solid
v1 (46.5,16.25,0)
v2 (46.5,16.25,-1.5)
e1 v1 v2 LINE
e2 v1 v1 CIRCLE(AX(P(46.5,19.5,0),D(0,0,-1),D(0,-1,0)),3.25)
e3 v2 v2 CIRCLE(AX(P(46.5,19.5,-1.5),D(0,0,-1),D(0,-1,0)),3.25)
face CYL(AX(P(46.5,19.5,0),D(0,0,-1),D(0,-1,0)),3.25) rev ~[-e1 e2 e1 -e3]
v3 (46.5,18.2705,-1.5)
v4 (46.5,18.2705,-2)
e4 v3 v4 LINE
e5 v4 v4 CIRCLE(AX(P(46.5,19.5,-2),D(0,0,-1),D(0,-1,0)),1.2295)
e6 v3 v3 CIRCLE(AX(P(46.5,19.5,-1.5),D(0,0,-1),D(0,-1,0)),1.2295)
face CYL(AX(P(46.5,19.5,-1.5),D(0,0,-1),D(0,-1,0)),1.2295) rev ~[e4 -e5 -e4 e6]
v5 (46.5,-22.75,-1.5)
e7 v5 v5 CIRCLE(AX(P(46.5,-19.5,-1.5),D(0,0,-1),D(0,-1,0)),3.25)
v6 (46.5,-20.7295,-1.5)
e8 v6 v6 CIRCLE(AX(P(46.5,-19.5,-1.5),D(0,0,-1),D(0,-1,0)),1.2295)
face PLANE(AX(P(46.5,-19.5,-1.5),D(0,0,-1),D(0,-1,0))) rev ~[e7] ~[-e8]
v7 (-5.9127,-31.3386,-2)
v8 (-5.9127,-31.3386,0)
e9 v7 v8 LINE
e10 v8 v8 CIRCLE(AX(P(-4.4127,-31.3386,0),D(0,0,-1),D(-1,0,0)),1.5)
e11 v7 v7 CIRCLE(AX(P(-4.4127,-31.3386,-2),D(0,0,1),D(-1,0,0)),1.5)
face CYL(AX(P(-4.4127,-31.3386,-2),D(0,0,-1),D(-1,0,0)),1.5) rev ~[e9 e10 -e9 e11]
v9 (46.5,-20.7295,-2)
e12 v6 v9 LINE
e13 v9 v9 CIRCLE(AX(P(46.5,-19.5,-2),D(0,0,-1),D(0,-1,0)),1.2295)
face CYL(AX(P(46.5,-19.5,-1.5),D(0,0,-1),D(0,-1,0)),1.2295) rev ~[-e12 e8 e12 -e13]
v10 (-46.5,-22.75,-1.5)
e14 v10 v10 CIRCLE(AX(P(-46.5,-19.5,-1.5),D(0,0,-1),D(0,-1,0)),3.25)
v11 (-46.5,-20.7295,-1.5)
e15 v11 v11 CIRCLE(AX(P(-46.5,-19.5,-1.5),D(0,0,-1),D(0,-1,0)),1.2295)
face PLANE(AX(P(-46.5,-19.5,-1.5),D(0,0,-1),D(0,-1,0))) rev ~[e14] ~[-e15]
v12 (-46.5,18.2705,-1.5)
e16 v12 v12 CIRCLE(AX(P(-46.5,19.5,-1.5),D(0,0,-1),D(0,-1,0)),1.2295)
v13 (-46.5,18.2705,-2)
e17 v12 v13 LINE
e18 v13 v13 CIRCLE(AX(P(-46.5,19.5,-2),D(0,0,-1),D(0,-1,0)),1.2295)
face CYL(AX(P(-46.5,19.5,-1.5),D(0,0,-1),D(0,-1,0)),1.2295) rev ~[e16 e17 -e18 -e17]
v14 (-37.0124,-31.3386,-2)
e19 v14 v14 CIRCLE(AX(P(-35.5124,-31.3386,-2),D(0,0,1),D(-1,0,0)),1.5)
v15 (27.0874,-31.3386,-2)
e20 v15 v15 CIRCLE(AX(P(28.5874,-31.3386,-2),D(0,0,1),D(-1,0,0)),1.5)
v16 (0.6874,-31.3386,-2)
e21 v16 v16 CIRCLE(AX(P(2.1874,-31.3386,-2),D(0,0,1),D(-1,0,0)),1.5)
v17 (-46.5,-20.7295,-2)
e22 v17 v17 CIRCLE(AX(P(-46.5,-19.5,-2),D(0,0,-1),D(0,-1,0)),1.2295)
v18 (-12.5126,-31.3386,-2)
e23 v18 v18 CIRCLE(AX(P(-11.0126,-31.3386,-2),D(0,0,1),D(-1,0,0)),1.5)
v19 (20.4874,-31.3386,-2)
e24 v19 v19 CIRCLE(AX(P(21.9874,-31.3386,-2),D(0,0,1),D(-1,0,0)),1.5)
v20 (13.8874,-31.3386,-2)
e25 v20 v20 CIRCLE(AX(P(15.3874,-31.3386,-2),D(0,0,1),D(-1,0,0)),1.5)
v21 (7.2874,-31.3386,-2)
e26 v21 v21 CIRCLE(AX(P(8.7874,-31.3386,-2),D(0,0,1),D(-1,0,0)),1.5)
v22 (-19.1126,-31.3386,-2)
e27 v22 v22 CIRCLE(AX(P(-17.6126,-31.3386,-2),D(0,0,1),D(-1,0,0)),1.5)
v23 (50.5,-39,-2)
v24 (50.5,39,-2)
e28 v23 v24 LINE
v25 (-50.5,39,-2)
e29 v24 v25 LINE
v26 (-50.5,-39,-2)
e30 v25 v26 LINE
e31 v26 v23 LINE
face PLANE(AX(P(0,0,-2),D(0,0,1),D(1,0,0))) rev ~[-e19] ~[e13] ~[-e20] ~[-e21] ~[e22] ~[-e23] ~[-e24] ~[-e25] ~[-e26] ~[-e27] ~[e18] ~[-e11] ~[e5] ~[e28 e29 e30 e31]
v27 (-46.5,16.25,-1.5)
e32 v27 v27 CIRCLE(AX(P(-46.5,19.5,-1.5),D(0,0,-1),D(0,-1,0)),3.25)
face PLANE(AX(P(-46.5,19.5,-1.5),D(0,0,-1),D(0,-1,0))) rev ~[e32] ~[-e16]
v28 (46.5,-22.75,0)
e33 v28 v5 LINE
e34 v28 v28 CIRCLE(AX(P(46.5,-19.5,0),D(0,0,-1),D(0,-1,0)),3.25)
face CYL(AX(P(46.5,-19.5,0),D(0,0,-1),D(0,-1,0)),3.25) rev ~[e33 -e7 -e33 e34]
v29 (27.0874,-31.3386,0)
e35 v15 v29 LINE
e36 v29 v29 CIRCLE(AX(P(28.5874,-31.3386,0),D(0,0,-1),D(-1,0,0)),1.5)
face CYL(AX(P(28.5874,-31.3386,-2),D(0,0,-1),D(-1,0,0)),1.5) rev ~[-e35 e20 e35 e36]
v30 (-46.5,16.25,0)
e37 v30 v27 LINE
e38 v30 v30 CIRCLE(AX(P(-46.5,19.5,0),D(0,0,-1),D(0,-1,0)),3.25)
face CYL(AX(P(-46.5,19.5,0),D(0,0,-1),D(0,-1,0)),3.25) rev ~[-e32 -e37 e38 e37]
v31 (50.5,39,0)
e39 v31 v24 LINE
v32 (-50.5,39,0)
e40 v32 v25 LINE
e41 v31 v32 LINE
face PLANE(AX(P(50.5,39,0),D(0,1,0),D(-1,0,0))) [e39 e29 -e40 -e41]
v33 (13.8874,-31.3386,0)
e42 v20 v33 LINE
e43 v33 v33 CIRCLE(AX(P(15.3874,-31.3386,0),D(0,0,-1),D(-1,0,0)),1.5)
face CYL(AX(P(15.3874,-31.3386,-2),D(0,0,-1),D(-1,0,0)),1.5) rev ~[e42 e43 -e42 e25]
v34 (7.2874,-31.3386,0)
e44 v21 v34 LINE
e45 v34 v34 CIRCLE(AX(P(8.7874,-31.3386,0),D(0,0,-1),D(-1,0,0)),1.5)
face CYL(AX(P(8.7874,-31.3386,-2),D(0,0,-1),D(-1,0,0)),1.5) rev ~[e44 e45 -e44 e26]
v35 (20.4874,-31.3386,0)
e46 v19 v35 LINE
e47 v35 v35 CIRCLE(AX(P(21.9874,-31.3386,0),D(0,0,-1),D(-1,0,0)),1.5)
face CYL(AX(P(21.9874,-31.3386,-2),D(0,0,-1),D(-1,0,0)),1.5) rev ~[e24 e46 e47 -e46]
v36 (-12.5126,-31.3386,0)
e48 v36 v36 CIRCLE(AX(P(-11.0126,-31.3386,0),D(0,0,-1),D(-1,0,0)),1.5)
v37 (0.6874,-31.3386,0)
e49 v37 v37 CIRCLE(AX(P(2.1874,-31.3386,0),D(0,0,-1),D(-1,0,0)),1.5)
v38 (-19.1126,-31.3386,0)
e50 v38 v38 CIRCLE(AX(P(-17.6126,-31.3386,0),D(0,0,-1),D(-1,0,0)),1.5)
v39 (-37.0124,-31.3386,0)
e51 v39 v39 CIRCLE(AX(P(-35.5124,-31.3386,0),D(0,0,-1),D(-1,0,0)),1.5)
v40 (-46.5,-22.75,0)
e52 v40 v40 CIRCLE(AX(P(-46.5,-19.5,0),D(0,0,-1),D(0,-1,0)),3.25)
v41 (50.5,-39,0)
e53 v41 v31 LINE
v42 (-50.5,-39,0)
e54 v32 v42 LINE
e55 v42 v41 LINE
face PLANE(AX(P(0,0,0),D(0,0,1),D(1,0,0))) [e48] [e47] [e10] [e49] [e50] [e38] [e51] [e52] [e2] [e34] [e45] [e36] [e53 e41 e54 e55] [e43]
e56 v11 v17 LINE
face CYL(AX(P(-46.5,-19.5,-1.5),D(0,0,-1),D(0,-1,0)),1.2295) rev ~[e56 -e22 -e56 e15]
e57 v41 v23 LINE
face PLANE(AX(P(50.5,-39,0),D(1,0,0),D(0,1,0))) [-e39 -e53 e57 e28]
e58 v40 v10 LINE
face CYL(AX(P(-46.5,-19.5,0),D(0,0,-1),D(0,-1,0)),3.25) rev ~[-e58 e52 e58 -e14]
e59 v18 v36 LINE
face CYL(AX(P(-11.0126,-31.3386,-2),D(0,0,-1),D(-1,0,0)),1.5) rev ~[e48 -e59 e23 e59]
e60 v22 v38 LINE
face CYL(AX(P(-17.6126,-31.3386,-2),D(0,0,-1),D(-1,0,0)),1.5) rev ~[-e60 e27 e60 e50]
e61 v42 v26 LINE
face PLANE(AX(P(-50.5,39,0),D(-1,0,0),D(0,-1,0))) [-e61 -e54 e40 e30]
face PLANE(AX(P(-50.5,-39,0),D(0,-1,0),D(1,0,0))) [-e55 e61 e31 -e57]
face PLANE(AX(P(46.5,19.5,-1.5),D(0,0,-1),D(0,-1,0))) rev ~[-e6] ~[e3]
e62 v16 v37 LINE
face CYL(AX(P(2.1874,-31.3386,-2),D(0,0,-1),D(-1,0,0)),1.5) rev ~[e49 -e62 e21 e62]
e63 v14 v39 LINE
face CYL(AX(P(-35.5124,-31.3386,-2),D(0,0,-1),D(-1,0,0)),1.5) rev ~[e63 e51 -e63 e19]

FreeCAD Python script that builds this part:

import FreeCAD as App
import Part
import Sketcher

V = App.Vector


def add_polygon(sketch, points):
    """Adds a closed chain of lines whose ends are joined by coincident constraints."""
    first, n = sketch.GeometryCount, len(points)
    for a, b in zip(points, points[1:] + points[:1]):
        sketch.addGeometry(Part.LineSegment(App.Vector(*a, 0), App.Vector(*b, 0)), False)
    for i in range(n):
        sketch.addConstraint(Sketcher.Constraint("Coincident", first + i, 2, first + (i + 1) % n, 1))

doc = App.newDocument("Part")
body = doc.addObject("PartDesign::Body", "Body")

sketch1 = body.newObject("Sketcher::SketchObject", "Sketch")
sketch1.AttachmentSupport = (doc.getObject("XY_Plane"), [""])
sketch1.MapMode = "FlatFace"
add_polygon(sketch1, [(-50.5, 39), (-50.5, -39), (50.5, -39), (50.5, 39)])
sketch1.addConstraint([
    Sketcher.Constraint("Vertical", 0),
    Sketcher.Constraint("Horizontal", 1),
    Sketcher.Constraint("Vertical", 2),
    Sketcher.Constraint("Horizontal", 3),
    Sketcher.Constraint("Symmetric", 0, 2, 2, 2, -1, 1),
    Sketcher.Constraint("DistanceX", 1, 1, 1, 2, 101.0),
    Sketcher.Constraint("DistanceY", 0, 2, 0, 1, 78.0),
])
pad1 = body.newObject("PartDesign::Pad", "Pad")
pad1.Profile = sketch1
pad1.Length = 2
pad1.Reversed = True

sketch2 = body.newObject("Sketcher::SketchObject", "Sketch001")
sketch2.AttachmentSupport = (doc.getObject("XY_Plane"), [""])
sketch2.MapMode = "FlatFace"
sketch2.addGeometry([
    Part.Circle(V(-46.5, 19.5, 0), V(0, 0, 1), 1.2295),
    Part.Circle(V(-46.5, -19.5, 0), V(0, 0, 1), 1.2295),
    Part.Circle(V(46.5, -19.5, 0), V(0, 0, 1), 1.2295),
    Part.Circle(V(46.5, 19.5, 0), V(0, 0, 1), 1.2295),
], False)
sketch2.addConstraint([
    Sketcher.Constraint("Equal", 0, 1),
    Sketcher.Constraint("Equal", 1, 2),
    Sketcher.Constraint("Equal", 2, 3),
    Sketcher.Constraint("Symmetric", 0, 3, 2, 3, -1, 1),
    Sketcher.Constraint("Symmetric", 1, 3, 3, 3, -1, 1),
    Sketcher.Constraint("Symmetric", 1, 3, 2, 3, -2),
    Sketcher.Constraint("Diameter", 0, 2.459),
    Sketcher.Constraint("DistanceY", 1, 3, 0, 3, 39.0),
    Sketcher.Constraint("DistanceX", 1, 3, 2, 3, 93.0),
])
doc.recompute()
hole = body.newObject("PartDesign::Hole", "Hole")
hole.Profile = sketch2
hole.ThreadType = "None"
hole.Diameter = 2.459
hole.DepthType = "ThroughAll"
hole.HoleCutType = "Counterbore"
hole.HoleCutDiameter = 6.5
hole.HoleCutDepth = 1.5

sketch3 = body.newObject("Sketcher::SketchObject", "Sketch002")
sketch3.AttachmentSupport = (doc.getObject("XY_Plane"), [""])
sketch3.MapMode = "FlatFace"
sketch3.AttachmentOffset = App.Placement(V(0, 0, -2), App.Rotation())
sketch3.addGeometry([
    Part.Circle(V(-35.5124, -31.3386, 0), V(0, 0, 1), 1.5),
    Part.Circle(V(28.5874, -31.3386, 0), V(0, 0, 1), 1.5),
    Part.Circle(V(21.9874, -31.3386, 0), V(0, 0, 1), 1.5),
    Part.Circle(V(15.3874, -31.3386, 0), V(0, 0, 1), 1.5),
    Part.Circle(V(8.7874, -31.3386, 0), V(0, 0, 1), 1.5),
    Part.Circle(V(2.1874, -31.3386, 0), V(0, 0, 1), 1.5),
    Part.Circle(V(-4.4127, -31.3386, 0), V(0, 0, 1), 1.5),
    Part.Circle(V(-11.0126, -31.3386, 0), V(0, 0, 1), 1.5),
    Part.Circle(V(-17.6126, -31.3386, 0), V(0, 0, 1), 1.5),
], False)
sketch3.addConstraint([
    Sketcher.Constraint("Equal", 0, 1),
    Sketcher.Constraint("Equal", 1, 2),
    Sketcher.Constraint("Equal", 2, 3),
    Sketcher.Constraint("Equal", 3, 4),
    Sketcher.Constraint("Equal", 4, 5),
    Sketcher.Constraint("Equal", 5, 6),
    Sketcher.Constraint("Equal", 6, 7),
    Sketcher.Constraint("Equal", 7, 8),
    Sketcher.Constraint("Horizontal", 0, 3, 1, 3),
    Sketcher.Constraint("Horizontal", 1, 3, 2, 3),
    Sketcher.Constraint("Horizontal", 2, 3, 3, 3),
    Sketcher.Constraint("Horizontal", 3, 3, 4, 3),
    Sketcher.Constraint("Horizontal", 4, 3, 5, 3),
    Sketcher.Constraint("Horizontal", 5, 3, 6, 3),
    Sketcher.Constraint("Horizontal", 6, 3, 7, 3),
    Sketcher.Constraint("Horizontal", 7, 3, 8, 3),
    Sketcher.Constraint("Diameter", 0, 3.0),
    Sketcher.Constraint("DistanceX", 2, 3, 1, 3, 6.6),
    Sketcher.Constraint("DistanceX", 3, 3, 2, 3, 6.6),
    Sketcher.Constraint("DistanceX", 4, 3, 3, 3, 6.6),
    Sketcher.Constraint("DistanceX", 5, 3, 4, 3, 6.6),
    Sketcher.Constraint("DistanceX", 6, 3, 5, 3, 6.6),
    Sketcher.Constraint("DistanceX", 7, 3, 6, 3, 6.6),
    Sketcher.Constraint("DistanceX", 8, 3, 7, 3, 6.6),
    Sketcher.Constraint("DistanceX", 0, 3, -1, 1, 35.5124),
    Sketcher.Constraint("DistanceY", 0, 3, -1, 1, 31.3386),
    Sketcher.Constraint("DistanceX", -1, 1, 1, 3, 28.5874),
])
pocket1 = body.newObject("PartDesign::Pocket", "Pocket")
pocket1.Profile = sketch3
pocket1.Length = 10
pocket1.Reversed = True

doc.recompute()
